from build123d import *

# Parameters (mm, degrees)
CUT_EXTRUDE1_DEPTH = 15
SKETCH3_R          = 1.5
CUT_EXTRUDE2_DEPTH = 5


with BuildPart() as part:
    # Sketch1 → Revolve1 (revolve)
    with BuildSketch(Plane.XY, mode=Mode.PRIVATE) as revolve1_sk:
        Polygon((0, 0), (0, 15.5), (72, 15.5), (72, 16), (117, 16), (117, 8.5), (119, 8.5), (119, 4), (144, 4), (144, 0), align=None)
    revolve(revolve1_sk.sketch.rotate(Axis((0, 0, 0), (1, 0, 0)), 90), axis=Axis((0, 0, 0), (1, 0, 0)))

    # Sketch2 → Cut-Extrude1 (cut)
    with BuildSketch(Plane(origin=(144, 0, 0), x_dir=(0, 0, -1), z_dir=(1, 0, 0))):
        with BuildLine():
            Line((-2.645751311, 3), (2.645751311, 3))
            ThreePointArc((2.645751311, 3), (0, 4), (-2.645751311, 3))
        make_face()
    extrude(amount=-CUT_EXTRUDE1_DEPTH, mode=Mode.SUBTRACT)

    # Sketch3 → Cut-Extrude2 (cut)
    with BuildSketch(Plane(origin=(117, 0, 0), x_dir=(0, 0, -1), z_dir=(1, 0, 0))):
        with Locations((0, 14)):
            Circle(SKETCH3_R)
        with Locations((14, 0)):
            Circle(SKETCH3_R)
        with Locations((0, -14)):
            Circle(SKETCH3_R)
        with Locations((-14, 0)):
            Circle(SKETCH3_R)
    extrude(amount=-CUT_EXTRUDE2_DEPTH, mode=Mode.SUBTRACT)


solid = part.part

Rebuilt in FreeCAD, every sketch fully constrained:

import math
import FreeCAD as App
import Part
import Sketcher
from FreeCAD import Vector

doc = App.newDocument("Part")
body = doc.addObject("PartDesign::Body", "Body")

sketch1 = body.newObject("Sketcher::SketchObject", "Sketch")
sketch1.AttachmentSupport = (doc.getObject("XY_Plane"), [""])
sketch1.MapMode = "FlatFace"
sketch1.addGeometry([
    Part.LineSegment(Vector(0, 15.5, 0), Vector(0, 0, 0)),
    Part.LineSegment(Vector(0, 0, 0), Vector(144, 0, 0)),
    Part.LineSegment(Vector(144, 0, 0), Vector(144, 4, 0)),
    Part.LineSegment(Vector(144, 4, 0), Vector(119, 4, 0)),
    Part.LineSegment(Vector(119, 4, 0), Vector(119, 8.5, 0)),
    Part.LineSegment(Vector(119, 8.5, 0), Vector(117, 8.5, 0)),
    Part.LineSegment(Vector(117, 8.5, 0), Vector(117, 16, 0)),
    Part.LineSegment(Vector(117, 16, 0), Vector(72, 16, 0)),
    Part.LineSegment(Vector(72, 16, 0), Vector(72, 15.5, 0)),
    Part.LineSegment(Vector(72, 15.5, 0), Vector(0, 15.5, 0)),
], False)
sketch1.addConstraint([
    Sketcher.Constraint("Coincident", 0, 2, 1, 1),
    Sketcher.Constraint("Coincident", 1, 2, 2, 1),
    Sketcher.Constraint("Coincident", 2, 2, 3, 1),
    Sketcher.Constraint("Coincident", 3, 2, 4, 1),
    Sketcher.Constraint("Coincident", 4, 2, 5, 1),
    Sketcher.Constraint("Coincident", 5, 2, 6, 1),
    Sketcher.Constraint("Coincident", 6, 2, 7, 1),
    Sketcher.Constraint("Coincident", 7, 2, 8, 1),
    Sketcher.Constraint("Coincident", 8, 2, 9, 1),
    Sketcher.Constraint("Coincident", 9, 2, 0, 1),
    Sketcher.Constraint("Vertical", 0),
    Sketcher.Constraint("Horizontal", 1),
    Sketcher.Constraint("Vertical", 2),
    Sketcher.Constraint("Horizontal", 3),
    Sketcher.Constraint("Vertical", 4),
    Sketcher.Constraint("Horizontal", 5),
    Sketcher.Constraint("Vertical", 6),
    Sketcher.Constraint("Horizontal", 7),
    Sketcher.Constraint("Vertical", 8),
    Sketcher.Constraint("Horizontal", 9),
    Sketcher.Constraint("Coincident", 0, 2, -1, 1),
    Sketcher.Constraint("DistanceX", 1, 1, 1, 2, 144.0),
    Sketcher.Constraint("DistanceX", 3, 2, 3, 1, 25.0),
    Sketcher.Constraint("DistanceX", 5, 2, 5, 1, 2.0),
    Sketcher.Constraint("DistanceX", 7, 2, 7, 1, 45.0),
    Sketcher.Constraint("DistanceY", 2, 1, 2, 2, 4.0),
    Sketcher.Constraint("DistanceY", 0, 2, 0, 1, 15.5),
    Sketcher.Constraint("DistanceY", 4, 1, 4, 2, 4.5),
    Sketcher.Constraint("DistanceY", 6, 1, 6, 2, 7.5),
])
revolution = body.newObject("PartDesign::Revolution", "Revolution")
revolution.Profile = sketch1
revolution.ReferenceAxis = (sketch1, ["H_Axis"])
revolution.Angle = 360

sketch2 = body.newObject("Sketcher::SketchObject", "Sketch001")
sketch2.AttachmentSupport = (doc.getObject("YZ_Plane"), [""])
sketch2.MapMode = "FlatFace"
sketch2.AttachmentOffset = App.Placement(Vector(0, 0, 144), App.Rotation())
sketch2.addGeometry([
    Part.LineSegment(Vector(3, 2.645751, 0), Vector(3, -2.645751, 0)),
    Part.ArcOfCircle(Part.Circle(Vector(0, 0, 0), Vector(0, 0, 1), 4), math.radians(-41.409622), math.radians(41.409622)),
], False)
sketch2.addConstraint([
    Sketcher.Constraint("Coincident", 0, 1, 1, 2),
    Sketcher.Constraint("Coincident", 1, 1, 0, 2),
    Sketcher.Constraint("Vertical", 0),
    Sketcher.Constraint("Coincident", 1, 3, -1, 1),
    Sketcher.Constraint("Radius", 1, 4.0),
    Sketcher.Constraint("DistanceX", -1, 1, 0, 1, 3.0),
])
pocket1 = body.newObject("PartDesign::Pocket", "Pocket")
pocket1.Profile = sketch2
pocket1.Length = 15

sketch3 = body.newObject("Sketcher::SketchObject", "Sketch002")
sketch3.AttachmentSupport = (doc.getObject("YZ_Plane"), [""])
sketch3.MapMode = "FlatFace"
sketch3.AttachmentOffset = App.Placement(Vector(0, 0, 117), App.Rotation())
sketch3.addGeometry([
    Part.Circle(Vector(14, 0, 0), Vector(0, 0, 1), 1.5),
    Part.Circle(Vector(0, -14, 0), Vector(0, 0, 1), 1.5),
    Part.Circle(Vector(-14, 0, 0), Vector(0, 0, 1), 1.5),
    Part.Circle(Vector(0, 14, 0), Vector(0, 0, 1), 1.5),
], False)
sketch3.addConstraint([
    Sketcher.Constraint("Equal", 0, 1),
    Sketcher.Constraint("Equal", 1, 2),
    Sketcher.Constraint("Equal", 2, 3),
    Sketcher.Constraint("Symmetric", 0, 3, 2, 3, -1, 1),
    Sketcher.Constraint("Symmetric", 1, 3, 3, 3, -1, 1),
    Sketcher.Constraint("PointOnObject", 0, 3, -1),
    Sketcher.Constraint("PointOnObject", 1, 3, -2),
    Sketcher.Constraint("Diameter", 0, 3.0),
    Sketcher.Constraint("DistanceX", -1, 1, 0, 3, 14.0),
    Sketcher.Constraint("DistanceY", 1, 3, -1, 1, 14.0),
])
pocket2 = body.newObject("PartDesign::Pocket", "Pocket001")
pocket2.Profile = sketch3
pocket2.Length = 5

doc.recompute()
